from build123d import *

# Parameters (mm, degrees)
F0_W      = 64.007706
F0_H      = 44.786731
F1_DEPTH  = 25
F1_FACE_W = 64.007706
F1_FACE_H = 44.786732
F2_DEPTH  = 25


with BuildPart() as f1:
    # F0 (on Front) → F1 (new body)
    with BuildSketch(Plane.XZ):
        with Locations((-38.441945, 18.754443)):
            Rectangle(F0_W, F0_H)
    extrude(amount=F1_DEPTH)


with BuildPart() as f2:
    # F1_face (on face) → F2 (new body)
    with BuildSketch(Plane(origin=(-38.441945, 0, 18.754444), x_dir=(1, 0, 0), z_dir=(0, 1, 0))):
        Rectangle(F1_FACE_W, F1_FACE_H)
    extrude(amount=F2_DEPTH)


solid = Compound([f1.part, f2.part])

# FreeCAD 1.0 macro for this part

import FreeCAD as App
import Part
import Sketcher

V = App.Vector
Q = App.Units.Quantity

doc = App.newDocument("Part")
body = doc.addObject("PartDesign::Body", "Body")

# Sketch on XZ plane
sketch1 = body.newObject("Sketcher::SketchObject", "Sketch")
sketch1.AttachmentSupport = (doc.getObject("XZ_Plane"), [""])
sketch1.MapMode = "FlatFace"
sketch1.addGeometry([
    Part.LineSegment(V(-70.445798, 41.147808, 0), V(-70.445798, -3.638923, 0)),
    Part.LineSegment(V(-70.445798, -3.638923, 0), V(-6.438092, -3.638923, 0)),
    Part.LineSegment(V(-6.438092, -3.638923, 0), V(-6.438092, 41.147808, 0)),
    Part.LineSegment(V(-6.438092, 41.147808, 0), V(-70.445798, 41.147808, 0)),
], False)
sketch1.addConstraint([
    Sketcher.Constraint("Coincident", 0, 2, 1, 1),
    Sketcher.Constraint("Coincident", 1, 2, 2, 1),
    Sketcher.Constraint("Coincident", 2, 2, 3, 1),
    Sketcher.Constraint("Coincident", 3, 2, 0, 1),
    Sketcher.Constraint("Vertical", 0),
    Sketcher.Constraint("Horizontal", 1),
    Sketcher.Constraint("Vertical", 2),
    Sketcher.Constraint("Horizontal", 3),
    Sketcher.Constraint("DistanceY", 0, 2, 0, 1, Q("44.786731 mm")),
    Sketcher.Constraint("DistanceX", 1, 1, 1, 2, Q("64.007706 mm")),
    Sketcher.Constraint("DistanceY", -1, 1, 2, 2, Q("41.147808 mm")),
    Sketcher.Constraint("DistanceX", 0, 2, -1, 1, Q("70.445798 mm")),
])
pad1 = body.newObject("PartDesign::Pad", "Pad")
pad1.Profile = sketch1
pad1.Length = 25
body2 = doc.addObject("PartDesign::Body", "Body001")

# Sketch on XZ plane
sketch2 = body2.newObject("Sketcher::SketchObject", "Sketch001")
sketch2.AttachmentSupport = (doc.getObject("XZ_Plane001"), [""])
sketch2.MapMode = "FlatFace"
sketch2.addGeometry([
    Part.LineSegment(V(-70.445798, -3.638922, 0), V(-70.445798, 41.14781, 0)),
    Part.LineSegment(V(-70.445798, 41.14781, 0), V(-6.438092, 41.14781, 0)),
    Part.LineSegment(V(-6.438092, 41.14781, 0), V(-6.438092, -3.638922, 0)),
    Part.LineSegment(V(-6.438092, -3.638922, 0), V(-70.445798, -3.638922, 0)),
], False)
sketch2.addConstraint([
    Sketcher.Constraint("Coincident", 0, 2, 1, 1),
    Sketcher.Constraint("Coincident", 1, 2, 2, 1),
    Sketcher.Constraint("Coincident", 2, 2, 3, 1),
    Sketcher.Constraint("Coincident", 3, 2, 0, 1),
    Sketcher.Constraint("Vertical", 0),
    Sketcher.Constraint("Horizontal", 1),
    Sketcher.Constraint("Vertical", 2),
    Sketcher.Constraint("Horizontal", 3),
    Sketcher.Constraint("DistanceX", 1, 1, 1, 2, Q("64.007706 mm")),
    Sketcher.Constraint("DistanceY", 0, 1, 0, 2, Q("44.786732 mm")),
    Sketcher.Constraint("DistanceY", -1, 1, 0, 2, Q("41.14781 mm")),
    Sketcher.Constraint("DistanceX", 0, 2, -1, 1, Q("70.445798 mm")),
])
pad2 = body2.newObject("PartDesign::Pad", "Pad001")
pad2.Profile = sketch2
pad2.Length = 25
pad2.Reversed = True

doc.recompute()
